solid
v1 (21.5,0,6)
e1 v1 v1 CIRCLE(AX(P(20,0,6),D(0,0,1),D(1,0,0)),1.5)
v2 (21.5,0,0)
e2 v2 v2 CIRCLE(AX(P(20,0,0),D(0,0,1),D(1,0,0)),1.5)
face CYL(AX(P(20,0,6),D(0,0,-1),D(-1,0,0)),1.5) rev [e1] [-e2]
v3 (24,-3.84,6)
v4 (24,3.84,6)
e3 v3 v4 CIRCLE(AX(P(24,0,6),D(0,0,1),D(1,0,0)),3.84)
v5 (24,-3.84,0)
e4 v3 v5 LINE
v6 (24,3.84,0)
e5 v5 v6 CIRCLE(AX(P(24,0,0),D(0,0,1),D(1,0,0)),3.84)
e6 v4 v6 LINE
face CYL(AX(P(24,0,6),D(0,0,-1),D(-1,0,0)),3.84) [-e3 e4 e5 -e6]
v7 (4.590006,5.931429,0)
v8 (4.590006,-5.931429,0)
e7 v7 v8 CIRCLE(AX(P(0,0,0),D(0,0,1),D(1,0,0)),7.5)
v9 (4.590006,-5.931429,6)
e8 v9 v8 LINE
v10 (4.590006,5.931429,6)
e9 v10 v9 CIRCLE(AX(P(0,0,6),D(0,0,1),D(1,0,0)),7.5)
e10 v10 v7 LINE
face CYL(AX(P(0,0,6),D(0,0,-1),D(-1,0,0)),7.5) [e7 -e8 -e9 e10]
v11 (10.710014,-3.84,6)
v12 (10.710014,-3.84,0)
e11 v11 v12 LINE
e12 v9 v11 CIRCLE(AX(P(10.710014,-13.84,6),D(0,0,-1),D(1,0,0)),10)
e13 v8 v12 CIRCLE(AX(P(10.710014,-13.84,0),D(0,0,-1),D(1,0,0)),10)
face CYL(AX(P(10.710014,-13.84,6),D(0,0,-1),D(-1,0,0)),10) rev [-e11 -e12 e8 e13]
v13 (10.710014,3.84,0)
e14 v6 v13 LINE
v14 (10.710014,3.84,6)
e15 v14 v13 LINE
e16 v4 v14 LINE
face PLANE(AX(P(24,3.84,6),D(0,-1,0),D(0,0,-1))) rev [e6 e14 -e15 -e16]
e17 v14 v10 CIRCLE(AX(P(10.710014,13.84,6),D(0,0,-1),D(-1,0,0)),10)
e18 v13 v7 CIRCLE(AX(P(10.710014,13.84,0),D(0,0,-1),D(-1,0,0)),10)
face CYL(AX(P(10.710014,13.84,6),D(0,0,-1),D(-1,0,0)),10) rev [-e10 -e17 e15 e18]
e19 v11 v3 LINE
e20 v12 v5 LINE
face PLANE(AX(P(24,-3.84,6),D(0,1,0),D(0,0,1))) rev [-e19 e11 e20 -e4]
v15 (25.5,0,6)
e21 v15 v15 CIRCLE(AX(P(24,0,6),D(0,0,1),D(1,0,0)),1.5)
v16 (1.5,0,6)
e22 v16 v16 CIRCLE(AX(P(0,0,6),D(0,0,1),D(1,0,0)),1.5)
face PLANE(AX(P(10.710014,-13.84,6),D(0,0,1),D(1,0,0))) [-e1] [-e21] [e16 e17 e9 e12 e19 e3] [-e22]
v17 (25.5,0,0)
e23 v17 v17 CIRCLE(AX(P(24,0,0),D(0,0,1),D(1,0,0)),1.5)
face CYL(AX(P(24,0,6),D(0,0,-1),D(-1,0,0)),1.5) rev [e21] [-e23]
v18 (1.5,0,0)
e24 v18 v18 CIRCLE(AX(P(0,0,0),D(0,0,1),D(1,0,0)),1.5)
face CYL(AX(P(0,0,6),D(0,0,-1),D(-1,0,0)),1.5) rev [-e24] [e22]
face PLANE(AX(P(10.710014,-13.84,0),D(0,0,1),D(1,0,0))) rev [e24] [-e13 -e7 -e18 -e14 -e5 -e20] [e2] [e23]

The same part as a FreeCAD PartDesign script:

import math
import FreeCAD as App
import Part
import Sketcher
Q = App.Units.Quantity

doc = App.newDocument("Part")
params = doc.addObject("Spreadsheet::Sheet", "Params")
for row, (alias, value) in enumerate([
    ("sketch1_diameter", "3 mm"),
    ("sketch1_radius", "10 mm"),
    ("sketch1_radius2", "7.5 mm"),
    ("sketch1_radius3", "3.84 mm"),
    ("pad1_length", "6 mm"),
], start=1):
    params.set(f"A{row}", alias)
    params.set(f"B{row}", "=" + value)
    params.setAlias(f"B{row}", alias)

body = doc.addObject("PartDesign::Body", "Body")

# Sketch on XY plane
sketch1 = body.newObject("Sketcher::SketchObject", "Sketch")
sketch1.AttachmentSupport = (doc.getObject("XY_Plane"), [""])
sketch1.MapMode = "FlatFace"
sketch1.addGeometry(Part.LineSegment(App.Vector(24, 3.84, 0), App.Vector(10.710014, 3.84, 0)), False)
sketch1.addGeometry(Part.ArcOfCircle(Part.Circle(App.Vector(10.710014, 13.84, 0), App.Vector(0, 0, 1), 10), math.radians(-127.734315), math.radians(-90)), False)
sketch1.addGeometry(Part.ArcOfCircle(Part.Circle(App.Vector(0, 0, 0), App.Vector(0, 0, 1), 7.5), math.radians(52.265685), math.radians(307.734315)), False)
sketch1.addGeometry(Part.ArcOfCircle(Part.Circle(App.Vector(10.710014, -13.84, 0), App.Vector(0, 0, 1), 10), math.radians(90), math.radians(127.734315)), False)
sketch1.addGeometry(Part.LineSegment(App.Vector(10.710014, -3.84, 0), App.Vector(24, -3.84, 0)), False)
sketch1.addGeometry(Part.ArcOfCircle(Part.Circle(App.Vector(24, 0, 0), App.Vector(0, 0, 1), 3.84), math.radians(-90), math.radians(90)), False)
sketch1.addGeometry(Part.Circle(App.Vector(0, 0, 0), App.Vector(0, 0, 1), 1.5), False)
sketch1.addGeometry(Part.Circle(App.Vector(20, 0, 0), App.Vector(0, 0, 1), 1.5), False)
sketch1.addGeometry(Part.Circle(App.Vector(24, 0, 0), App.Vector(0, 0, 1), 1.5), False)
sketch1.addConstraint(Sketcher.Constraint("Tangent", 0, 2, 1, 2))
sketch1.addConstraint(Sketcher.Constraint("Tangent", 1, 1, 2, 1))
sketch1.addConstraint(Sketcher.Constraint("Tangent", 2, 2, 3, 2))
sketch1.addConstraint(Sketcher.Constraint("Tangent", 3, 1, 4, 1))
sketch1.addConstraint(Sketcher.Constraint("Tangent", 4, 2, 5, 1))
sketch1.addConstraint(Sketcher.Constraint("Tangent", 5, 2, 0, 1))
sketch1.addConstraint(Sketcher.Constraint("Horizontal", 0))
sketch1.addConstraint(Sketcher.Constraint("Horizontal", 4))
sketch1.addConstraint(Sketcher.Constraint("Coincident", 2, 3, -1, 1))
sketch1.addConstraint(Sketcher.Constraint("Coincident", 6, 3, -1, 1))
sketch1.addConstraint(Sketcher.Constraint("Coincident", 8, 3, 5, 3))
sketch1.addConstraint(Sketcher.Constraint("Equal", 1, 3))
sketch1.addConstraint(Sketcher.Constraint("Equal", 6, 7))
sketch1.addConstraint(Sketcher.Constraint("Equal", 7, 8))
sketch1.addConstraint(Sketcher.Constraint("PointOnObject", 5, 3, -1))
sketch1.addConstraint(Sketcher.Constraint("PointOnObject", 7, 3, -1))
sketch1.addConstraint(Sketcher.Constraint("Diameter", 6, Q("3 mm")))
sketch1.addConstraint(Sketcher.Constraint("Radius", 1, Q("10 mm")))
sketch1.addConstraint(Sketcher.Constraint("Radius", 2, Q("7.5 mm")))
sketch1.addConstraint(Sketcher.Constraint("Radius", 5, Q("3.84 mm")))
sketch1.addConstraint(Sketcher.Constraint("DistanceX", -1, 1, 5, 3, Q("24 mm")))
sketch1.addConstraint(Sketcher.Constraint("DistanceX", -1, 1, 7, 3, Q("20 mm")))
sketch1.setExpression("Constraints[16]", "Params.sketch1_diameter")
sketch1.setExpression("Constraints[17]", "Params.sketch1_radius")
sketch1.setExpression("Constraints[18]", "Params.sketch1_radius2")
sketch1.setExpression("Constraints[19]", "Params.sketch1_radius3")
pad1 = body.newObject("PartDesign::Pad", "Pad")
pad1.Profile = sketch1
pad1.setExpression("Length", "Params.pad1_length")

doc.recompute()
